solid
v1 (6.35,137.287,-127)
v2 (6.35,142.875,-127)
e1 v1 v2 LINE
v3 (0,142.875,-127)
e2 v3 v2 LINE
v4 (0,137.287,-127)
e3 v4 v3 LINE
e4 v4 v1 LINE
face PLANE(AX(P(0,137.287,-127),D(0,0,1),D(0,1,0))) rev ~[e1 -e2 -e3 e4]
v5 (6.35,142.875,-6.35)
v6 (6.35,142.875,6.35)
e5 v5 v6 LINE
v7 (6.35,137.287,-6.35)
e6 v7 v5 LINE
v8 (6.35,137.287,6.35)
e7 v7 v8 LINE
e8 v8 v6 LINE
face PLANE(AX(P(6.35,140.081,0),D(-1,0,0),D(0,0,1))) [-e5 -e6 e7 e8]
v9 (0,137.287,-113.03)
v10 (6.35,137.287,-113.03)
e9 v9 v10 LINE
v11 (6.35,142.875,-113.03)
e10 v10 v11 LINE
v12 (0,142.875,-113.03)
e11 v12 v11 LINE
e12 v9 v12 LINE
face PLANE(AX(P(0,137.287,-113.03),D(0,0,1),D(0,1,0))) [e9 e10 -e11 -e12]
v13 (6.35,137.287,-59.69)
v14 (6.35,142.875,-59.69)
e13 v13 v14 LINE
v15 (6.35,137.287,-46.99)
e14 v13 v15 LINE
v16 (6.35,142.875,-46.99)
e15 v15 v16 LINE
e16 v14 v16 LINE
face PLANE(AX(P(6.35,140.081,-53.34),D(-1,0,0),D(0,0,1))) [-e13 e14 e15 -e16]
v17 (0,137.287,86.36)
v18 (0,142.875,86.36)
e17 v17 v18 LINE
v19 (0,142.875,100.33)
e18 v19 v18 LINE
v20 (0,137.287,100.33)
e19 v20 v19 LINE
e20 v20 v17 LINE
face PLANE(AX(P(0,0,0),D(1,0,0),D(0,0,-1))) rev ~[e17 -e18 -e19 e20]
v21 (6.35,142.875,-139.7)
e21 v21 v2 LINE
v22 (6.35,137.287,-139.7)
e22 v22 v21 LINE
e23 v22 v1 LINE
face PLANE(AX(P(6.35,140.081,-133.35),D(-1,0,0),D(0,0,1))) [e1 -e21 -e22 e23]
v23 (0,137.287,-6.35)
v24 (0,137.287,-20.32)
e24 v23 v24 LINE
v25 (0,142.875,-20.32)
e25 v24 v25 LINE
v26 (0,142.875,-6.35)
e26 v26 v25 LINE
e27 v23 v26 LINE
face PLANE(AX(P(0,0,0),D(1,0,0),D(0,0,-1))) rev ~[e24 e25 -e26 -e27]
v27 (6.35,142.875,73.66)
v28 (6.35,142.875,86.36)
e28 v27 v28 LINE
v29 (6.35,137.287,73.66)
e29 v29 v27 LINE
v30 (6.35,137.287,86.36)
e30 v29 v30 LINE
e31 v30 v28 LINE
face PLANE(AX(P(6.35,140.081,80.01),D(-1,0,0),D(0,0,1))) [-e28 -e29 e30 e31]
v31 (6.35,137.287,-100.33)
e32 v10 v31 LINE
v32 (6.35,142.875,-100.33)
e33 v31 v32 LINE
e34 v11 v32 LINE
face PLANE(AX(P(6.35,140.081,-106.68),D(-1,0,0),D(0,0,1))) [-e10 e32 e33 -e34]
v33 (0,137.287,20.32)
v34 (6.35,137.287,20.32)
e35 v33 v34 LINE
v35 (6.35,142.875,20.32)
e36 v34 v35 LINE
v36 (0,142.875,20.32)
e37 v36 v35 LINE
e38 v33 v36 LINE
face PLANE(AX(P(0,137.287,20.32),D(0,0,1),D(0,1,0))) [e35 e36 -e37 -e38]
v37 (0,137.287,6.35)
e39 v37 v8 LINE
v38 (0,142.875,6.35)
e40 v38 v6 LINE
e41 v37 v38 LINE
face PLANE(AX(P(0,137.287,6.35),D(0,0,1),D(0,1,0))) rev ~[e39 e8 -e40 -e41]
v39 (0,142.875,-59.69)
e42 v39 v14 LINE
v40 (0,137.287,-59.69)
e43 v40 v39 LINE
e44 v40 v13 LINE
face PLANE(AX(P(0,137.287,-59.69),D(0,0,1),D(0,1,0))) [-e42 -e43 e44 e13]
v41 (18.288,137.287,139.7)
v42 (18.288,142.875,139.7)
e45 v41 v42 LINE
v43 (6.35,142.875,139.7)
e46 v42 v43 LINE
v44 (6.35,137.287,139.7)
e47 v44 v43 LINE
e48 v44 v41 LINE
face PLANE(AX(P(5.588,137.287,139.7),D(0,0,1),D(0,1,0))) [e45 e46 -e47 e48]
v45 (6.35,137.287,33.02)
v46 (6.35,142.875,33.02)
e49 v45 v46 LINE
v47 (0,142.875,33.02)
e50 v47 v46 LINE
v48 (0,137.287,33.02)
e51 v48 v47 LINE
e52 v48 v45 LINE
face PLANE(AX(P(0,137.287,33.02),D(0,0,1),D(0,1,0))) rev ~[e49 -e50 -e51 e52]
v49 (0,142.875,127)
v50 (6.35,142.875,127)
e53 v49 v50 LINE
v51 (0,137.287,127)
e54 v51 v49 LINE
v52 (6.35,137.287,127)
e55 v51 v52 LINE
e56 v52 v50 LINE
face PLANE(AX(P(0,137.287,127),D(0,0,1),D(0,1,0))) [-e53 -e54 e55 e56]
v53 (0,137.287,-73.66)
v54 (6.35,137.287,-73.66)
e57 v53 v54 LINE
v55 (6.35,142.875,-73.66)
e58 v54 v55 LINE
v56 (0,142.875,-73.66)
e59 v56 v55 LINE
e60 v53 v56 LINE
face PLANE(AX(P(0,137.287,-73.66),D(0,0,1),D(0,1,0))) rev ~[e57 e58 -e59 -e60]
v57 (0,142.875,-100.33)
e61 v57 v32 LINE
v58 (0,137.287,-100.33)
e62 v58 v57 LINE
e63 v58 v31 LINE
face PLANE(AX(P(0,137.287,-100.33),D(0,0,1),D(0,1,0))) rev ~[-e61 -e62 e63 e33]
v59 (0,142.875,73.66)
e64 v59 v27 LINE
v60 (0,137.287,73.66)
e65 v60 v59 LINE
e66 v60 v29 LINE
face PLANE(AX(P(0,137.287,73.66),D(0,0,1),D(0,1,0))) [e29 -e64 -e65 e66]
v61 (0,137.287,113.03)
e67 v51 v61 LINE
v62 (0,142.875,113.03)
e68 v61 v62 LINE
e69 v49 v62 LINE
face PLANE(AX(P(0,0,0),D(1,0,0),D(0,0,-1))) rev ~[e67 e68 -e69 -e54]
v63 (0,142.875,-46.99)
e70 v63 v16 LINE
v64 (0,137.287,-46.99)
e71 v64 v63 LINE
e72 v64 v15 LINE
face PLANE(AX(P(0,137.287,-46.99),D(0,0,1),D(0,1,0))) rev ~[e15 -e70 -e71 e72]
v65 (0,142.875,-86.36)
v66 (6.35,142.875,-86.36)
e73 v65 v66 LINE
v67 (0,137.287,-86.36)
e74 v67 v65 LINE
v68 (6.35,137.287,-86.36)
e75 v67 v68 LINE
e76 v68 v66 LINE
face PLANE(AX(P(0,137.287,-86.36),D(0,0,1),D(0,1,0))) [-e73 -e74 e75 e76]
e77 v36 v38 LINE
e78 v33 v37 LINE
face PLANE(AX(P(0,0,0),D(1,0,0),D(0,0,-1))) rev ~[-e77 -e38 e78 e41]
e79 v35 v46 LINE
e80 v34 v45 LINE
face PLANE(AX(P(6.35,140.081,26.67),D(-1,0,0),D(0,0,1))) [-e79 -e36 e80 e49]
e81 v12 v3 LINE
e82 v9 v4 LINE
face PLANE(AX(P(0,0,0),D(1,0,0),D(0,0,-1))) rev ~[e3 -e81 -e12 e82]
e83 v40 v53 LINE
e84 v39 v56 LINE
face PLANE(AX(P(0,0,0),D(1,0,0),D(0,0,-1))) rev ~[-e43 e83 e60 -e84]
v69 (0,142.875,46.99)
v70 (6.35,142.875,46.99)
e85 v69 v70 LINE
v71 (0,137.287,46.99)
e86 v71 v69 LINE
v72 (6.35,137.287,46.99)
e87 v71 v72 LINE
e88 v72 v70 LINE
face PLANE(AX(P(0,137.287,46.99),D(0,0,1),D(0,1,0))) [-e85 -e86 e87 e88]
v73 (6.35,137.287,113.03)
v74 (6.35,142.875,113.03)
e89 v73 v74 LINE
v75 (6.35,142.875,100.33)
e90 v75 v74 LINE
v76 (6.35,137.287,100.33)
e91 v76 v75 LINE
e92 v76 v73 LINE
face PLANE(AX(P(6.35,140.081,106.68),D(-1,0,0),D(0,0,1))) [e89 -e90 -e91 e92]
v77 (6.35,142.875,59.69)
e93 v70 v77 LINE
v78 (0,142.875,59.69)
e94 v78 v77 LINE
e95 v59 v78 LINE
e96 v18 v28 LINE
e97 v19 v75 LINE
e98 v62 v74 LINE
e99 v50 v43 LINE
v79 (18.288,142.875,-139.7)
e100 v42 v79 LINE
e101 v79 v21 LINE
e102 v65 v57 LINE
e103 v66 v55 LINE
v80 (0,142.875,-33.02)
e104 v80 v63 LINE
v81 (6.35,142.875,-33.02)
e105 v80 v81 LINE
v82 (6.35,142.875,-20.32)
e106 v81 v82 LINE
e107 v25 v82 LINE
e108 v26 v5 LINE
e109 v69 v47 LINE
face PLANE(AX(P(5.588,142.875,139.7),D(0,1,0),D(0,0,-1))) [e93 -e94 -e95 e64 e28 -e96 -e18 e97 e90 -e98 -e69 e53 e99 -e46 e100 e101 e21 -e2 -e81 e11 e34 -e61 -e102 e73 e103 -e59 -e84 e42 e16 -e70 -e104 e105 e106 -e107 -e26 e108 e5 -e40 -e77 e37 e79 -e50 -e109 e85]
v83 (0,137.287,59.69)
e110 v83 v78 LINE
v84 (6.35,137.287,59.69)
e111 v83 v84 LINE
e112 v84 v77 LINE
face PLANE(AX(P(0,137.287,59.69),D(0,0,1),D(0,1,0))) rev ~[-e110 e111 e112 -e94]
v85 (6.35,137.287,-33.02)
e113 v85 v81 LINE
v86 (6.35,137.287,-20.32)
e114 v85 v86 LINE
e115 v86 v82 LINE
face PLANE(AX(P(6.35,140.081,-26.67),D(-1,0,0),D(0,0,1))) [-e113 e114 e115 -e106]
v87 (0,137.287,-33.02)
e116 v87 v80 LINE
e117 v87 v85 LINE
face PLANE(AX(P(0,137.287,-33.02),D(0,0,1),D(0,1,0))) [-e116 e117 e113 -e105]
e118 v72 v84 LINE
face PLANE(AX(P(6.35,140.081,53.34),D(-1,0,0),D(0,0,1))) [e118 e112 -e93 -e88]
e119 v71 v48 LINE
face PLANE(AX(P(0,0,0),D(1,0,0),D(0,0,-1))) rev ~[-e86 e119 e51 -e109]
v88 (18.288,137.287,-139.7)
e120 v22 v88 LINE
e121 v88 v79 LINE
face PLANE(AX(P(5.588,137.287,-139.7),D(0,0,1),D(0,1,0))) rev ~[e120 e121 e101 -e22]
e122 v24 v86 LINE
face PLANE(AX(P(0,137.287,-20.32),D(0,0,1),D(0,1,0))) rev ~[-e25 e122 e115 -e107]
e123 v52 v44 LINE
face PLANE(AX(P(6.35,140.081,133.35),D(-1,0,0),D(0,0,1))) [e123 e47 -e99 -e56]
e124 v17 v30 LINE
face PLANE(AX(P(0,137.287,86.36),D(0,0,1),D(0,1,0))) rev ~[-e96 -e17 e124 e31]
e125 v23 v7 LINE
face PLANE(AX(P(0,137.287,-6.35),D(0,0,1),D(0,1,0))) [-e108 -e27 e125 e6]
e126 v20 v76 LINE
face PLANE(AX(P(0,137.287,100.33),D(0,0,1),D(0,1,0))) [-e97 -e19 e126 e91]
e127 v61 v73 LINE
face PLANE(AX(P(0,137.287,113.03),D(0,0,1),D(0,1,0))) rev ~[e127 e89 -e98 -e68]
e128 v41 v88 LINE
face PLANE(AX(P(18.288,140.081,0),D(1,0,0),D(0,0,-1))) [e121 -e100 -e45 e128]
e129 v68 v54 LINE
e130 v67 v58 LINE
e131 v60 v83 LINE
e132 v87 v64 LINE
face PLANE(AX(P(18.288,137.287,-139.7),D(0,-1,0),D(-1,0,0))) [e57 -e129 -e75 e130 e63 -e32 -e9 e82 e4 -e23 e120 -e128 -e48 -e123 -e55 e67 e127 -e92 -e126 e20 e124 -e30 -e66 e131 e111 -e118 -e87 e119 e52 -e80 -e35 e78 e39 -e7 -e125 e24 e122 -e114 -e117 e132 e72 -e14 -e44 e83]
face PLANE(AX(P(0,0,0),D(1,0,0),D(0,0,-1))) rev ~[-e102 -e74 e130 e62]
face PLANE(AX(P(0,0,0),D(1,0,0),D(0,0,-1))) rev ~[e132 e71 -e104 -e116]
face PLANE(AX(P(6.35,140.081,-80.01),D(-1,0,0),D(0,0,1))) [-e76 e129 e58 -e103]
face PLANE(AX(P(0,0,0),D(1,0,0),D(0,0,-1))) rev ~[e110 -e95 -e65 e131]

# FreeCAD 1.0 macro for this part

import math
import FreeCAD as App
import Part
import Sketcher
from FreeCAD import Vector
Q = App.Units.Quantity

doc = App.newDocument("Part")
body = doc.addObject("PartDesign::Body", "Body")

# Sketch on YZ plane
sketch1 = body.newObject("Sketcher::SketchObject", "Sketch")
sketch1.AttachmentSupport = (doc.getObject("YZ_Plane"), [""])
sketch1.MapMode = "FlatFace"
sketch1.addGeometry([
    Part.LineSegment(Vector(143, 140, 0), Vector(-143, 140, 0)),
    Part.LineSegment(Vector(-143, 140, 0), Vector(-143, -140, 0)),
    Part.LineSegment(Vector(-143, -140, 0), Vector(143, -140, 0)),
    Part.LineSegment(Vector(143, -140, 0), Vector(143, 140, 0)),
], False)
sketch1.addConstraint([
    Sketcher.Constraint("Coincident", 0, 2, 1, 1),
    Sketcher.Constraint("Coincident", 1, 2, 2, 1),
    Sketcher.Constraint("Coincident", 2, 2, 3, 1),
    Sketcher.Constraint("Coincident", 3, 2, 0, 1),
    Sketcher.Constraint("Horizontal", 0),
    Sketcher.Constraint("Vertical", 1),
    Sketcher.Constraint("Horizontal", 2),
    Sketcher.Constraint("Vertical", 3),
    Sketcher.Constraint("Symmetric", 0, 2, 2, 2, -1, 1),
    Sketcher.Constraint("DistanceY", 1, 2, 1, 1, Q("11 in")),
    Sketcher.Constraint("DistanceX", 0, 2, 0, 1, Q("11.25 in")),
])
pad1 = body.newObject("PartDesign::Pad", "Pad")
pad1.Profile = sketch1
pad1.Length = Q("0.22 in")

# Sketch on YZ plane
sketch2 = body.newObject("Sketcher::SketchObject", "Sketch001")
sketch2.AttachmentSupport = (doc.getObject("YZ_Plane"), [""])
sketch2.MapMode = "FlatFace"
sketch2.AttachmentOffset = App.Placement(Vector(0, 0, 0.22 * 25.4), App.Rotation())
sketch2.addGeometry([
    Part.LineSegment(Vector(143, 140, 0), Vector(137, 140, 0)),
    Part.LineSegment(Vector(137, 140, 0), Vector(137, -140, 0)),
    Part.LineSegment(Vector(137, -140, 0), Vector(143, -140, 0)),
    Part.LineSegment(Vector(143, -140, 0), Vector(143, 140, 0)),
], False)
sketch2.addConstraint([
    Sketcher.Constraint("Coincident", 0, 2, 1, 1),
    Sketcher.Constraint("Coincident", 1, 2, 2, 1),
    Sketcher.Constraint("Coincident", 2, 2, 3, 1),
    Sketcher.Constraint("Coincident", 3, 2, 0, 1),
    Sketcher.Constraint("Horizontal", 0),
    Sketcher.Constraint("Vertical", 1),
    Sketcher.Constraint("Horizontal", 2),
    Sketcher.Constraint("Vertical", 3),
    Sketcher.Constraint("DistanceY", 1, 2, 1, 1, Q("11 in")),
    Sketcher.Constraint("DistanceX", 0, 2, 0, 1, Q("0.22 in")),
    Sketcher.Constraint("DistanceY", -1, 1, 0, 2, Q("5.5 in")),
    Sketcher.Constraint("DistanceX", -1, 1, 0, 2, Q("5.405 in")),
])
pad2 = body.newObject("PartDesign::Pad", "Pad001")
pad2.Profile = sketch2
pad2.Length = Q("0.5 in")

# Sketch on YZ plane
sketch3 = body.newObject("Sketcher::SketchObject", "Sketch002")
sketch3.AttachmentSupport = (doc.getObject("YZ_Plane"), [""])
sketch3.MapMode = "FlatFace"
sketch3.addGeometry([
    Part.LineSegment(Vector(-86, -25, 0), Vector(-86, -114, 0)),
    Part.ArcOfCircle(Part.Circle(Vector(-98, -114, 0), Vector(0, 0, 1), 13), math.radians(180), math.radians(360)),
    Part.LineSegment(Vector(-111, -114, 0), Vector(-111, -25, 0)),
    Part.ArcOfCircle(Part.Circle(Vector(-98, -25, 0), Vector(0, 0, 1), 13), math.radians(0), math.radians(180)),
], False)
sketch3.addConstraint([
    Sketcher.Constraint("Tangent", 0, 2, 1, 2),
    Sketcher.Constraint("Tangent", 1, 1, 2, 1),
    Sketcher.Constraint("Tangent", 2, 2, 3, 2),
    Sketcher.Constraint("Tangent", 3, 1, 0, 1),
    Sketcher.Constraint("Vertical", 0),
    Sketcher.Constraint("Vertical", 2),
    Sketcher.Constraint("Radius", 1, Q("0.5 in")),
    Sketcher.Constraint("DistanceY", 0, 2, 0, 1, Q("3.5 in")),
    Sketcher.Constraint("DistanceY", 3, 3, -1, 1, Q("1 in")),
    Sketcher.Constraint("DistanceX", 1, 3, -1, 1, Q("3.875 in")),
])
pocket1 = body.newObject("PartDesign::Pocket", "Pocket")
pocket1.Profile = sketch3
pocket1.Type = "ThroughAll"
pocket1.Reversed = True

# Sketch on XY plane
sketch4 = body.newObject("Sketcher::SketchObject", "Sketch003")
sketch4.AttachmentSupport = (doc.getObject("XY_Plane"), [""])
sketch4.MapMode = "FlatFace"
sketch4.AttachmentOffset = App.Placement(Vector(0, 0, -5.5 * 25.4), App.Rotation())
sketch4.addGeometry([
    Part.LineSegment(Vector(18, 137, 0), Vector(18, -231, 0)),
    Part.LineSegment(Vector(18, -231, 0), Vector(-46, -231, 0)),
    Part.LineSegment(Vector(-46, -231, 0), Vector(-46, 137, 0)),
    Part.LineSegment(Vector(-46, 137, 0), Vector(18, 137, 0)),
], False)
sketch4.addConstraint([
    Sketcher.Constraint("Coincident", 0, 2, 1, 1),
    Sketcher.Constraint("Coincident", 1, 2, 2, 1),
    Sketcher.Constraint("Coincident", 2, 2, 3, 1),
    Sketcher.Constraint("Coincident", 3, 2, 0, 1),
    Sketcher.Constraint("Vertical", 0),
    Sketcher.Constraint("Horizontal", 1),
    Sketcher.Constraint("Vertical", 2),
    Sketcher.Constraint("Horizontal", 3),
    Sketcher.Constraint("DistanceX", -1, 1, 0, 2, Q("0.72 in")),
    Sketcher.Constraint("DistanceY", -1, 1, 2, 2, Q("5.405 in")),
    Sketcher.Constraint("DistanceX", 1, 2, 1, 1, 64.162912),
    Sketcher.Constraint("DistanceY", 0, 2, 0, 1, 368.728813),
])
pocket2 = body.newObject("PartDesign::Pocket", "Pocket001")
pocket2.Profile = sketch4
pocket2.Type = "ThroughAll"
pocket2.Reversed = True

# Sketch on YZ plane
sketch5 = body.newObject("Sketcher::SketchObject", "Sketch004")
sketch5.AttachmentSupport = (doc.getObject("YZ_Plane"), [""])
sketch5.MapMode = "FlatFace"
sketch5.addGeometry([
    Part.LineSegment(Vector(143, -113, 0), Vector(137, -113, 0)),  # 0
    Part.LineSegment(Vector(137, -113, 0), Vector(137, -100, 0)),  # 1
    Part.LineSegment(Vector(137, -100, 0), Vector(143, -100, 0)),  # 2
    Part.LineSegment(Vector(143, -100, 0), Vector(143, -113, 0)),  # 3
    Part.LineSegment(Vector(143, -140, 0), Vector(137, -140, 0)),  # 4
    Part.LineSegment(Vector(137, -140, 0), Vector(137, -127, 0)),  # 5
    Part.LineSegment(Vector(137, -127, 0), Vector(143, -127, 0)),  # 6
    Part.LineSegment(Vector(143, -127, 0), Vector(143, -140, 0)),  # 7
    Part.LineSegment(Vector(143, -86, 0), Vector(137, -86, 0)),  # 8
    Part.LineSegment(Vector(137, -86, 0), Vector(137, -74, 0)),  # 9
    Part.LineSegment(Vector(137, -74, 0), Vector(143, -74, 0)),  # 10
    Part.LineSegment(Vector(143, -74, 0), Vector(143, -86, 0)),  # 11
    Part.LineSegment(Vector(143, -60, 0), Vector(137, -60, 0)),  # 12
    Part.LineSegment(Vector(137, -60, 0), Vector(137, -47, 0)),  # 13
    Part.LineSegment(Vector(137, -47, 0), Vector(143, -47, 0)),  # 14
    Part.LineSegment(Vector(143, -47, 0), Vector(143, -60, 0)),  # 15
    Part.LineSegment(Vector(143, -33, 0), Vector(137, -33, 0)),  # 16
    Part.LineSegment(Vector(137, -33, 0), Vector(137, -20, 0)),  # 17
    Part.LineSegment(Vector(137, -20, 0), Vector(143, -20, 0)),  # 18
    Part.LineSegment(Vector(143, -20, 0), Vector(143, -33, 0)),  # 19
    Part.LineSegment(Vector(143, -6, 0), Vector(137, -6, 0)),  # 20
    Part.LineSegment(Vector(137, -6, 0), Vector(137, 6, 0)),  # 21
    Part.LineSegment(Vector(137, 6, 0), Vector(143, 6, 0)),  # 22
    Part.LineSegment(Vector(143, 6, 0), Vector(143, -6, 0)),  # 23
    Part.LineSegment(Vector(143, 20, 0), Vector(137, 20, 0)),  # 24
    Part.LineSegment(Vector(137, 20, 0), Vector(137, 33, 0)),  # 25
    Part.LineSegment(Vector(137, 33, 0), Vector(143, 33, 0)),  # 26
    Part.LineSegment(Vector(143, 33, 0), Vector(143, 20, 0)),  # 27
    Part.LineSegment(Vector(143, 47, 0), Vector(137, 47, 0)),  # 28
    Part.LineSegment(Vector(137, 47, 0), Vector(137, 60, 0)),  # 29
    Part.LineSegment(Vector(137, 60, 0), Vector(143, 60, 0)),  # 30
    Part.LineSegment(Vector(143, 60, 0), Vector(143, 47, 0)),  # 31
    Part.LineSegment(Vector(143, 74, 0), Vector(137, 74, 0)),  # 32
    Part.LineSegment(Vector(137, 74, 0), Vector(137, 86, 0)),  # 33
    Part.LineSegment(Vector(137, 86, 0), Vector(143, 86, 0)),  # 34
    Part.LineSegment(Vector(143, 86, 0), Vector(143, 74, 0)),  # 35
    Part.LineSegment(Vector(143, 100, 0), Vector(137, 100, 0)),  # 36
    Part.LineSegment(Vector(137, 100, 0), Vector(137, 113, 0)),  # 37
    Part.LineSegment(Vector(137, 113, 0), Vector(143, 113, 0)),  # 38
    Part.LineSegment(Vector(143, 113, 0), Vector(143, 100, 0)),  # 39
    Part.LineSegment(Vector(143, 127, 0), Vector(137, 127, 0)),  # 40
    Part.LineSegment(Vector(137, 127, 0), Vector(137, 140, 0)),  # 41
    Part.LineSegment(Vector(137, 140, 0), Vector(143, 140, 0)),  # 42
    Part.LineSegment(Vector(143, 140, 0), Vector(143, 127, 0)),  # 43
], False)
sketch5.addConstraint([
    Sketcher.Constraint("Coincident", 0, 2, 1, 1),
    Sketcher.Constraint("Coincident", 1, 2, 2, 1),
    Sketcher.Constraint("Coincident", 2, 2, 3, 1),
    Sketcher.Constraint("Coincident", 3, 2, 0, 1),
    Sketcher.Constraint("Coincident", 4, 2, 5, 1),
    Sketcher.Constraint("Coincident", 5, 2, 6, 1),
    Sketcher.Constraint("Coincident", 6, 2, 7, 1),
    Sketcher.Constraint("Coincident", 7, 2, 4, 1),
    Sketcher.Constraint("Coincident", 8, 2, 9, 1),
    Sketcher.Constraint("Coincident", 9, 2, 10, 1),
    Sketcher.Constraint("Coincident", 10, 2, 11, 1),
    Sketcher.Constraint("Coincident", 11, 2, 8, 1),
    Sketcher.Constraint("Coincident", 12, 2, 13, 1),
    Sketcher.Constraint("Coincident", 13, 2, 14, 1),
    Sketcher.Constraint("Coincident", 14, 2, 15, 1),
    Sketcher.Constraint("Coincident", 15, 2, 12, 1),
    Sketcher.Constraint("Coincident", 16, 2, 17, 1),
    Sketcher.Constraint("Coincident", 17, 2, 18, 1),
    Sketcher.Constraint("Coincident", 18, 2, 19, 1),
    Sketcher.Constraint("Coincident", 19, 2, 16, 1),
    Sketcher.Constraint("Coincident", 20, 2, 21, 1),
    Sketcher.Constraint("Coincident", 21, 2, 22, 1),
    Sketcher.Constraint("Coincident", 22, 2, 23, 1),
    Sketcher.Constraint("Coincident", 23, 2, 20, 1),
    Sketcher.Constraint("Coincident", 24, 2, 25, 1),
    Sketcher.Constraint("Coincident", 25, 2, 26, 1),
    Sketcher.Constraint("Coincident", 26, 2, 27, 1),
    Sketcher.Constraint("Coincident", 27, 2, 24, 1),
    Sketcher.Constraint("Coincident", 28, 2, 29, 1),
    Sketcher.Constraint("Coincident", 29, 2, 30, 1),
    Sketcher.Constraint("Coincident", 30, 2, 31, 1),
    Sketcher.Constraint("Coincident", 31, 2, 28, 1),
    Sketcher.Constraint("Coincident", 32, 2, 33, 1),
    Sketcher.Constraint("Coincident", 33, 2, 34, 1),
    Sketcher.Constraint("Coincident", 34, 2, 35, 1),
    Sketcher.Constraint("Coincident", 35, 2, 32, 1),
    Sketcher.Constraint("Coincident", 36, 2, 37, 1),
    Sketcher.Constraint("Coincident", 37, 2, 38, 1),
    Sketcher.Constraint("Coincident", 38, 2, 39, 1),
    Sketcher.Constraint("Coincident", 39, 2, 36, 1),
    Sketcher.Constraint("Coincident", 40, 2, 41, 1),
    Sketcher.Constraint("Coincident", 41, 2, 42, 1),
    Sketcher.Constraint("Coincident", 42, 2, 43, 1),
    Sketcher.Constraint("Coincident", 43, 2, 40, 1),
    Sketcher.Constraint("Horizontal", 0),
    Sketcher.Constraint("Vertical", 1),
    Sketcher.Constraint("Horizontal", 2),
    Sketcher.Constraint("Vertical", 3),
    Sketcher.Constraint("Horizontal", 4),
    Sketcher.Constraint("Vertical", 5),
    Sketcher.Constraint("Horizontal", 6),
    Sketcher.Constraint("Vertical", 7),
    Sketcher.Constraint("Horizontal", 8),
    Sketcher.Constraint("Vertical", 9),
    Sketcher.Constraint("Horizontal", 10),
    Sketcher.Constraint("Vertical", 11),
    Sketcher.Constraint("Horizontal", 12),
    Sketcher.Constraint("Vertical", 13),
    Sketcher.Constraint("Horizontal", 14),
    Sketcher.Constraint("Vertical", 15),
    Sketcher.Constraint("Horizontal", 16),
    Sketcher.Constraint("Vertical", 17),
    Sketcher.Constraint("Horizontal", 18),
    Sketcher.Constraint("Vertical", 19),
    Sketcher.Constraint("Horizontal", 20),
    Sketcher.Constraint("Vertical", 21),
    Sketcher.Constraint("Horizontal", 22),
    Sketcher.Constraint("Vertical", 23),
    Sketcher.Constraint("Horizontal", 24),
    Sketcher.Constraint("Vertical", 25),
    Sketcher.Constraint("Horizontal", 26),
    Sketcher.Constraint("Vertical", 27),
    Sketcher.Constraint("Horizontal", 28),
    Sketcher.Constraint("Vertical", 29),
    Sketcher.Constraint("Horizontal", 30),
    Sketcher.Constraint("Vertical", 31),
    Sketcher.Constraint("Horizontal", 32),
    Sketcher.Constraint("Vertical", 33),
    Sketcher.Constraint("Horizontal", 34),
    Sketcher.Constraint("Vertical", 35),
    Sketcher.Constraint("Horizontal", 36),
    Sketcher.Constraint("Vertical", 37),
    Sketcher.Constraint("Horizontal", 38),
    Sketcher.Constraint("Vertical", 39),
    Sketcher.Constraint("Horizontal", 40),
    Sketcher.Constraint("Vertical", 41),
    Sketcher.Constraint("Horizontal", 42),
    Sketcher.Constraint("Vertical", 43),
    Sketcher.Constraint("Symmetric", 17, 2, 24, 2, -1),
    Sketcher.Constraint("Symmetric", 19, 2, 26, 2, -1),
    Sketcher.Constraint("Symmetric", 13, 2, 28, 2, -1),
    Sketcher.Constraint("Symmetric", 15, 2, 30, 2, -1),
    Sketcher.Constraint("Symmetric", 9, 2, 32, 2, -1),
    Sketcher.Constraint("Symmetric", 11, 2, 34, 2, -1),
    Sketcher.Constraint("Symmetric", 1, 2, 36, 2, -1),
    Sketcher.Constraint("Symmetric", 3, 2, 38, 2, -1),
    Sketcher.Constraint("Symmetric", 5, 2, 40, 2, -1),
    Sketcher.Constraint("Symmetric", 7, 2, 42, 2, -1),
    Sketcher.Constraint("Vertical", 1, 2, 4, 2),
    Sketcher.Constraint("Vertical", 3, 2, 6, 2),
    Sketcher.Constraint("Vertical", 5, 2, 8, 2),
    Sketcher.Constraint("Vertical", 7, 2, 10, 2),
    Sketcher.Constraint("Vertical", 9, 2, 12, 2),
    Sketcher.Constraint("Vertical", 11, 2, 14, 2),
    Sketcher.Constraint("Vertical", 13, 2, 16, 2),
    Sketcher.Constraint("Vertical", 15, 2, 18, 2),
    Sketcher.Constraint("Vertical", 17, 2, 20, 2),
    Sketcher.Constraint("Vertical", 19, 2, 22, 2),
    Sketcher.Constraint("Equal", 3, 5),
    Sketcher.Constraint("Equal", 7, 9),
    Sketcher.Constraint("Equal", 11, 13),
    Sketcher.Constraint("Equal", 15, 17),
    Sketcher.Constraint("Equal", 19, 21),
    Sketcher.Constraint("DistanceY", 1, 1, 1, 2, Q("0.5 in")),
    Sketcher.Constraint("DistanceY", 5, 2, -1, 1, Q("5 in")),
    Sketcher.Constraint("DistanceX", 0, 2, 0, 1, Q("0.22 in")),
    Sketcher.Constraint("DistanceY", 8, 2, -1, 1, Q("3.4 in")),
    Sketcher.Constraint("DistanceY", 16, 2, -1, 1, Q("1.3 in")),
    Sketcher.Constraint("DistanceY", 1, 2, 12, 2, Q("1.6 in")),
    Sketcher.Constraint("DistanceY", 13, 2, 20, 2, Q("1.6 in")),
    Sketcher.Constraint("DistanceY", 21, 2, 28, 2, Q("1.6 in")),
    Sketcher.Constraint("DistanceX", -1, 1, 0, 2, Q("5.405 in")),
])
pocket3 = body.newObject("PartDesign::Pocket", "Pocket002")
pocket3.Profile = sketch5
pocket3.Length = Q("0.25 in")
pocket3.Reversed = True

doc.recompute()
